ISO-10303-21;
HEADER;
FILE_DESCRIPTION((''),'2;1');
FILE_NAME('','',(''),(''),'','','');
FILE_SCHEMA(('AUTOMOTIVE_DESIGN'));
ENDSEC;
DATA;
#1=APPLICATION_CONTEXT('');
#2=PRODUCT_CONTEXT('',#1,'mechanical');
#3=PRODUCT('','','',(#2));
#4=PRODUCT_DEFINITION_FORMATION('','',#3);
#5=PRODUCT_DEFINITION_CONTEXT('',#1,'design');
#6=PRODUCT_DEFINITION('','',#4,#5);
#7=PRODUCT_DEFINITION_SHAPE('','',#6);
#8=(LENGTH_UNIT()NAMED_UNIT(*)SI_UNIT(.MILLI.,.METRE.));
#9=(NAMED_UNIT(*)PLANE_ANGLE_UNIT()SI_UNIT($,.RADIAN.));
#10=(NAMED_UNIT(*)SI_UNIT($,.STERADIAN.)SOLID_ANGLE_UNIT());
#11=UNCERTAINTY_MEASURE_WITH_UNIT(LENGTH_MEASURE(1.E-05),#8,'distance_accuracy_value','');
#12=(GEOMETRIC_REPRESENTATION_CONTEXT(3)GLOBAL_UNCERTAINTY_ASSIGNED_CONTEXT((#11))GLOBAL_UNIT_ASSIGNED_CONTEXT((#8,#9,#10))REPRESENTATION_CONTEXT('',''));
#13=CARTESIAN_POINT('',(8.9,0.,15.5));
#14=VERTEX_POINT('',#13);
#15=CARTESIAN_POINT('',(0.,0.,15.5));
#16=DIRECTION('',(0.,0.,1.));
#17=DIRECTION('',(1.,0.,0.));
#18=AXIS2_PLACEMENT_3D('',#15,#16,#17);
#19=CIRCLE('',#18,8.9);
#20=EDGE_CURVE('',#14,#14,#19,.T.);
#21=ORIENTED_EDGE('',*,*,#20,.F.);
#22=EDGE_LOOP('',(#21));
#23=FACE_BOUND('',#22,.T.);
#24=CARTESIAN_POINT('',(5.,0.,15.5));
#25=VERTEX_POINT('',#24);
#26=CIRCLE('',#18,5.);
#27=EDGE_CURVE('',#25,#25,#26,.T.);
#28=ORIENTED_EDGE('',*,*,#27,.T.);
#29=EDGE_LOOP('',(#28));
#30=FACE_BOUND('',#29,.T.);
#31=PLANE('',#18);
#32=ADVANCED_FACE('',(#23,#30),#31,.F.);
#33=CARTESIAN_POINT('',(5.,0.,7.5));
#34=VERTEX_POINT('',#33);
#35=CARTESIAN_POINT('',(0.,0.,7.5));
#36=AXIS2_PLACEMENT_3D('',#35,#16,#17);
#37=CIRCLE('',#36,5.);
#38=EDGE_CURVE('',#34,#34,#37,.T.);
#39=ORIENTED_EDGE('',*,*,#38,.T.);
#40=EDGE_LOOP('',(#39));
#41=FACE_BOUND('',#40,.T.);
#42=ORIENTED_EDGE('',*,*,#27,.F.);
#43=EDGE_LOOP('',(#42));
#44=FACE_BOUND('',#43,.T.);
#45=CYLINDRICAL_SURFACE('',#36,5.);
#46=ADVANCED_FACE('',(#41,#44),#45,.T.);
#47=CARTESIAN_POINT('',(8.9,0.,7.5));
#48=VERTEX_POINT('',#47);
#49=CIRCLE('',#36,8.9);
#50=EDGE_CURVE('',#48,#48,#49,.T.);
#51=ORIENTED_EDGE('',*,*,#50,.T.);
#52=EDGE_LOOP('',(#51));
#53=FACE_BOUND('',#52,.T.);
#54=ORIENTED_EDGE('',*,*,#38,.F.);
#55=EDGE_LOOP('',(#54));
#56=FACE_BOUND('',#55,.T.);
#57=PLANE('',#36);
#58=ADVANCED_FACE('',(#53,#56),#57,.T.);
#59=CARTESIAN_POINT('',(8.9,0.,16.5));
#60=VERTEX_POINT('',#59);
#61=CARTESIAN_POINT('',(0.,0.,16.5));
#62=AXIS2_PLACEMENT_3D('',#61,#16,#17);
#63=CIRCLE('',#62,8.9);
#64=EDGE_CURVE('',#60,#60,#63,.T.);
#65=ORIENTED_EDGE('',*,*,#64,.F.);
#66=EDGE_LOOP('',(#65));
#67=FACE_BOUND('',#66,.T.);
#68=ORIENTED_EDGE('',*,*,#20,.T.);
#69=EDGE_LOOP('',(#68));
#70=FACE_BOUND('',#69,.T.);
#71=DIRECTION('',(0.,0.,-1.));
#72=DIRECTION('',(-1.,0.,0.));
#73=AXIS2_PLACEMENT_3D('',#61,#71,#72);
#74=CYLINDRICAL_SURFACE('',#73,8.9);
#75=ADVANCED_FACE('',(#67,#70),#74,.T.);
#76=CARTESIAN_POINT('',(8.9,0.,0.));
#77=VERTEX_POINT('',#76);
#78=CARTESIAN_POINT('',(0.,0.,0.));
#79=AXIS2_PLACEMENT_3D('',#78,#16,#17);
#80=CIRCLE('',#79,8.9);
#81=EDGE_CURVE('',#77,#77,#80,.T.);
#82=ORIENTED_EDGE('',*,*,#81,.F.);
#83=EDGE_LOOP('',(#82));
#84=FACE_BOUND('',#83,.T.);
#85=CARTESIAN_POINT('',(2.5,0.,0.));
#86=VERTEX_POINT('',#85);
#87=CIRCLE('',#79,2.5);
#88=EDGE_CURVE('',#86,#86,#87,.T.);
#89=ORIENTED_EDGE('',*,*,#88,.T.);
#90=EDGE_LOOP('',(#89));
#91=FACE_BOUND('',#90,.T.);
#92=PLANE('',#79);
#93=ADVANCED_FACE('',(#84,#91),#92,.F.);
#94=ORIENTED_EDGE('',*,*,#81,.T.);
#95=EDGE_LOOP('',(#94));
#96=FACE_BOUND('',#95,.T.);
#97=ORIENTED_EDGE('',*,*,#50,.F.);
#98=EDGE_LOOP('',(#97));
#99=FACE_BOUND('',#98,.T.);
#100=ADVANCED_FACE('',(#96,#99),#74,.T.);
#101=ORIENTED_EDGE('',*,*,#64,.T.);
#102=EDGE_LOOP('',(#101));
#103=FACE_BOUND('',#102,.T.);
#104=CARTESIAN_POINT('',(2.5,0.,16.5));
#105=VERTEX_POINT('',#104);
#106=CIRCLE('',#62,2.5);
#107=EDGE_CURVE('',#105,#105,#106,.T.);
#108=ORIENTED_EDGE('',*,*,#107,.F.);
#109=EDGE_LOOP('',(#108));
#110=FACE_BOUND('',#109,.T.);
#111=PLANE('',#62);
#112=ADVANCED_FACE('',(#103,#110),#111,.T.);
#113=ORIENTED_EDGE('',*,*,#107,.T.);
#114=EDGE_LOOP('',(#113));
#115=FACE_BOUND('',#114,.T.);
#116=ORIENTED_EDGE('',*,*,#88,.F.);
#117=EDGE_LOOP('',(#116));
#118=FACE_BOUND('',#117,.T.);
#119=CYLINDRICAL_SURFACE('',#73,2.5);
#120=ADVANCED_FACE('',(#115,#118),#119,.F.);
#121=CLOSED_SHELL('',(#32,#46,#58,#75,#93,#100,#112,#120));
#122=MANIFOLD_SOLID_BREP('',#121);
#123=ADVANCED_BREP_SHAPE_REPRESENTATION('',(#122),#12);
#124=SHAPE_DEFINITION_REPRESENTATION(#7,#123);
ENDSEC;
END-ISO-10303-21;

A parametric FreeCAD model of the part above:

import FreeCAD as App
import Part
import Sketcher

V = App.Vector
Q = App.Units.Quantity

doc = App.newDocument("Part")
body = doc.addObject("PartDesign::Body", "Body")

# Sketch on XY plane
sketch1 = body.newObject("Sketcher::SketchObject", "Sketch")
sketch1.AttachmentSupport = (doc.getObject("XY_Plane"), [""])
sketch1.MapMode = "FlatFace"
sketch1.addGeometry(Part.Circle(V(0, 0, 0), V(0, 0, 1), 8.9), False)
sketch1.addGeometry(Part.Circle(V(0, 0, 0), V(0, 0, 1), 2.5), False)
sketch1.addConstraint(Sketcher.Constraint("Coincident", 0, 3, -1, 1))
sketch1.addConstraint(Sketcher.Constraint("Coincident", 1, 3, -1, 1))
sketch1.addConstraint(Sketcher.Constraint("Diameter", 1, Q("5 mm")))
sketch1.addConstraint(Sketcher.Constraint("Diameter", 0, Q("17.8 mm")))
pad1 = body.newObject("PartDesign::Pad", "Pad")
pad1.Profile = sketch1
pad1.Length = 16.5

# Sketch on XY plane
sketch2 = body.newObject("Sketcher::SketchObject", "Sketch001")
sketch2.AttachmentSupport = (doc.getObject("XY_Plane"), [""])
sketch2.MapMode = "FlatFace"
sketch2.AttachmentOffset = App.Placement(V(0, 0, 7.5), App.Rotation())
sketch2.addGeometry(Part.Circle(V(0, 0, 0), V(0, 0, 1), 8.9), False)
sketch2.addGeometry(Part.Circle(V(0, 0, 0), V(0, 0, 1), 5), False)
sketch2.addConstraint(Sketcher.Constraint("Coincident", 0, 3, -1, 1))
sketch2.addConstraint(Sketcher.Constraint("Coincident", 1, 3, -1, 1))
sketch2.addConstraint(Sketcher.Constraint("Diameter", 1, Q("10 mm")))
sketch2.addConstraint(Sketcher.Constraint("Diameter", 0, Q("17.8 mm")))
pocket1 = body.newObject("PartDesign::Pocket", "Pocket")
pocket1.Profile = sketch2
pocket1.Length = 8
pocket1.Reversed = True

doc.recompute()
